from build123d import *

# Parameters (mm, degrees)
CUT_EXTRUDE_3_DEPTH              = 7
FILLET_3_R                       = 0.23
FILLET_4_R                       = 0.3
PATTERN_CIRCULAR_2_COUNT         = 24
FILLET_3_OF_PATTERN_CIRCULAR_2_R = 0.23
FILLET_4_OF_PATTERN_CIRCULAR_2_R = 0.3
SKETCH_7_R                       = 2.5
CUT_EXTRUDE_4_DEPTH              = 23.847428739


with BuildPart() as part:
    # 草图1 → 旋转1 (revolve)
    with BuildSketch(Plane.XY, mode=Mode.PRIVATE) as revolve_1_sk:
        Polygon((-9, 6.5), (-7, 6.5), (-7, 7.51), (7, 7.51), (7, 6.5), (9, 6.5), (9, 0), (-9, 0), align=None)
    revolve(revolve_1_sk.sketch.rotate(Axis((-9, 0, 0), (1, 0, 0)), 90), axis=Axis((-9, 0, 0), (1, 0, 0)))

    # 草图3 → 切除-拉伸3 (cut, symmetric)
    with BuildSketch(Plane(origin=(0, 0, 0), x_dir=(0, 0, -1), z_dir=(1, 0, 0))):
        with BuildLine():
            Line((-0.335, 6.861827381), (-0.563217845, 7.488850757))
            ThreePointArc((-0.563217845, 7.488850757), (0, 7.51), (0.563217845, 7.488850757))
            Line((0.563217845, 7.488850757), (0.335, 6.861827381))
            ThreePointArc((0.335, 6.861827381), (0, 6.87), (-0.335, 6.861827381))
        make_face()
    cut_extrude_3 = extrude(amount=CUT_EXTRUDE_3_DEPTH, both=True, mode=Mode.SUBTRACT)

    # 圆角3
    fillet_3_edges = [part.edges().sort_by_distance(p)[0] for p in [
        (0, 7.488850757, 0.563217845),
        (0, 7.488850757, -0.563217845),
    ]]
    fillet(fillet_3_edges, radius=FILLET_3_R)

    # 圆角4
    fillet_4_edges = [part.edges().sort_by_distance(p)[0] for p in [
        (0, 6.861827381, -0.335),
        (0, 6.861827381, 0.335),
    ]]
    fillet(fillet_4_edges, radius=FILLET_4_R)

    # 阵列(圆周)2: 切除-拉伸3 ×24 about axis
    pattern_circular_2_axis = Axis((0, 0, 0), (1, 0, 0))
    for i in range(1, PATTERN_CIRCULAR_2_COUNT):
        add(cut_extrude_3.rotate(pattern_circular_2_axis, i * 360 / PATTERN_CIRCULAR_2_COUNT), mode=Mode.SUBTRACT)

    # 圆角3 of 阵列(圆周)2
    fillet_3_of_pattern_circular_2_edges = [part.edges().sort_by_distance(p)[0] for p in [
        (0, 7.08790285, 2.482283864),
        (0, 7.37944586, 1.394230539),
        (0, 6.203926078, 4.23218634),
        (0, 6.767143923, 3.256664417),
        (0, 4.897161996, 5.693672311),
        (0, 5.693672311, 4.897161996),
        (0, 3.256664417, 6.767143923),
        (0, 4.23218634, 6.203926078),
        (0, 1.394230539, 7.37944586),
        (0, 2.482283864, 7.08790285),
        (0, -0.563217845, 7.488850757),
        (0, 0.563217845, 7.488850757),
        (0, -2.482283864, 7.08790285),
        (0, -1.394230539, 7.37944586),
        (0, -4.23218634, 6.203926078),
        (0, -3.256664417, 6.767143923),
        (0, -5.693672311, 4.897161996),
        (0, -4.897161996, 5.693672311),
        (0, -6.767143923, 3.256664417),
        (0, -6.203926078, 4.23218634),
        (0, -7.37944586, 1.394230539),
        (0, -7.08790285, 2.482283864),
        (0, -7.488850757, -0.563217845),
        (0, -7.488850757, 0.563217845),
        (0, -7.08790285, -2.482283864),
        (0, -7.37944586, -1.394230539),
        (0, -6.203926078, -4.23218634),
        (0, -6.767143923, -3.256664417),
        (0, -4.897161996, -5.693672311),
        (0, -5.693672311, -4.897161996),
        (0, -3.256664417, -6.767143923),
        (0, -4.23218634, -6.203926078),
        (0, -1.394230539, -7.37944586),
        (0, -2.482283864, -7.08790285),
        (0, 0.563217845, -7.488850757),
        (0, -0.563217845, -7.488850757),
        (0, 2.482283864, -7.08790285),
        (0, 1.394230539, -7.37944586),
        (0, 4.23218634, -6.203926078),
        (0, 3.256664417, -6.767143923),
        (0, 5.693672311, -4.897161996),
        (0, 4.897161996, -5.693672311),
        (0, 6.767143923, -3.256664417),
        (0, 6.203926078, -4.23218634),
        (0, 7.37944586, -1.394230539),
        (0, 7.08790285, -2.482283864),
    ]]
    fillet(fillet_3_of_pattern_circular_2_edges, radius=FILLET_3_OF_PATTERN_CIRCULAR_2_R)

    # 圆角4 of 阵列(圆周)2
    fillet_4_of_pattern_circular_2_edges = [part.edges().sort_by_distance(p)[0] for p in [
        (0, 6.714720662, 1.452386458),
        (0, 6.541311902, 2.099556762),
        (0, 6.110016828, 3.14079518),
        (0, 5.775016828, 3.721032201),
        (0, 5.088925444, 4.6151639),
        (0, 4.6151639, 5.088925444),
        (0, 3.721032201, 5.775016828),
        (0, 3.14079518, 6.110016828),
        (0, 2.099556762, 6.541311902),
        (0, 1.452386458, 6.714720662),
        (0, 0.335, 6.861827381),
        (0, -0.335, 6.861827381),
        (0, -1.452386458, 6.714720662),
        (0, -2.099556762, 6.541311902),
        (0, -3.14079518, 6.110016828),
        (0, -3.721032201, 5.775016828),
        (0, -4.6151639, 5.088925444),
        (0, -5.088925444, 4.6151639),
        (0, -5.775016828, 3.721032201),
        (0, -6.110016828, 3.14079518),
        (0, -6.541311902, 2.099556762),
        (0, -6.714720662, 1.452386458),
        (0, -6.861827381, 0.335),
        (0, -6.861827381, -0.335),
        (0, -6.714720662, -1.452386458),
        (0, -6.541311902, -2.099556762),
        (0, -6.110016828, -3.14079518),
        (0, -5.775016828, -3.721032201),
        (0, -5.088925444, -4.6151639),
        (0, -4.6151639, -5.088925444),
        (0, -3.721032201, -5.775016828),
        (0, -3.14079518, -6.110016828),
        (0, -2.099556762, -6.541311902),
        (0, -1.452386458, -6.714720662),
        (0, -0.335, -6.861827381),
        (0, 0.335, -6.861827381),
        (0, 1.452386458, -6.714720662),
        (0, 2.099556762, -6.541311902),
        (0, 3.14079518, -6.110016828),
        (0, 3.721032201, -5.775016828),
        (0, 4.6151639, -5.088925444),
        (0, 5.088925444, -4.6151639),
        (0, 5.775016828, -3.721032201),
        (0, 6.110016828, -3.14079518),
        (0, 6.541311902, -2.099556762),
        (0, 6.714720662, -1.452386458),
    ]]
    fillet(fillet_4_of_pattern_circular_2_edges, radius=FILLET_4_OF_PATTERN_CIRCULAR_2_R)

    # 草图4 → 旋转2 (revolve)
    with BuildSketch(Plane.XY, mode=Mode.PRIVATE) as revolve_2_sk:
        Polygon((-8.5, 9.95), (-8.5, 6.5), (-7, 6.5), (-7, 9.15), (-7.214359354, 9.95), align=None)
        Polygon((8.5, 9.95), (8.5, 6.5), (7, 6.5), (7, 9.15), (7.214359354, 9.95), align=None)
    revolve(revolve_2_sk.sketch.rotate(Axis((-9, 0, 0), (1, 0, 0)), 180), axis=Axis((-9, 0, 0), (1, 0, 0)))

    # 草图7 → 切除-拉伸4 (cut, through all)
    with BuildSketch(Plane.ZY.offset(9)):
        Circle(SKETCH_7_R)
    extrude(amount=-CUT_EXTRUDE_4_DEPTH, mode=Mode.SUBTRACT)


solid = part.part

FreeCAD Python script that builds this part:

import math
import FreeCAD as App
import Part
import Sketcher

V = App.Vector
Q = App.Units.Quantity


def edges_at(feature, points):
    """Names of the edges that pass closest to the given points."""
    edges = feature.Shape.Edges
    near = lambda p: min(range(len(edges)), key=lambda i: edges[i].distToShape(Part.Vertex(*p))[0])
    return sorted({f"Edge{near(p) + 1}" for p in points})

doc = App.newDocument("Part")
body = doc.addObject("PartDesign::Body", "Body")

sketch1 = body.newObject("Sketcher::SketchObject", "Sketch")
sketch1.AttachmentSupport = (doc.getObject("XY_Plane"), [""])
sketch1.MapMode = "FlatFace"
sketch1.addGeometry(Part.LineSegment(V(-7, 6.5, 0), V(-9, 6.5, 0)), False)
sketch1.addGeometry(Part.LineSegment(V(-9, 6.5, 0), V(-9, 0, 0)), False)
sketch1.addGeometry(Part.LineSegment(V(-9, 0, 0), V(9, 0, 0)), False)
sketch1.addGeometry(Part.LineSegment(V(9, 0, 0), V(9, 6.5, 0)), False)
sketch1.addGeometry(Part.LineSegment(V(9, 6.5, 0), V(7, 6.5, 0)), False)
sketch1.addGeometry(Part.LineSegment(V(7, 6.5, 0), V(7, 7.51, 0)), False)
sketch1.addGeometry(Part.LineSegment(V(7, 7.51, 0), V(-7, 7.51, 0)), False)
sketch1.addGeometry(Part.LineSegment(V(-7, 7.51, 0), V(-7, 6.5, 0)), False)
sketch1.addConstraint(Sketcher.Constraint("Coincident", 0, 2, 1, 1))
sketch1.addConstraint(Sketcher.Constraint("Coincident", 1, 2, 2, 1))
sketch1.addConstraint(Sketcher.Constraint("Coincident", 2, 2, 3, 1))
sketch1.addConstraint(Sketcher.Constraint("Coincident", 3, 2, 4, 1))
sketch1.addConstraint(Sketcher.Constraint("Coincident", 4, 2, 5, 1))
sketch1.addConstraint(Sketcher.Constraint("Coincident", 5, 2, 6, 1))
sketch1.addConstraint(Sketcher.Constraint("Coincident", 6, 2, 7, 1))
sketch1.addConstraint(Sketcher.Constraint("Coincident", 7, 2, 0, 1))
sketch1.addConstraint(Sketcher.Constraint("Horizontal", 0))
sketch1.addConstraint(Sketcher.Constraint("Vertical", 1))
sketch1.addConstraint(Sketcher.Constraint("Horizontal", 2))
sketch1.addConstraint(Sketcher.Constraint("Vertical", 3))
sketch1.addConstraint(Sketcher.Constraint("Horizontal", 4))
sketch1.addConstraint(Sketcher.Constraint("Vertical", 5))
sketch1.addConstraint(Sketcher.Constraint("Horizontal", 6))
sketch1.addConstraint(Sketcher.Constraint("Vertical", 7))
sketch1.addConstraint(Sketcher.Constraint("Symmetric", 1, 2, 2, 2, -1, 1))
sketch1.addConstraint(Sketcher.Constraint("Symmetric", 4, 2, 7, 2, -2))
sketch1.addConstraint(Sketcher.Constraint("DistanceX", 0, 2, 0, 1, Q("2 mm")))
sketch1.addConstraint(Sketcher.Constraint("DistanceX", 2, 1, 2, 2, Q("18 mm")))
sketch1.addConstraint(Sketcher.Constraint("DistanceY", 1, 2, 1, 1, Q("6.5 mm")))
sketch1.addConstraint(Sketcher.Constraint("DistanceY", 5, 1, 5, 2, Q("1.01 mm")))
revolution = body.newObject("PartDesign::Revolution", "Revolution")
revolution.Profile = sketch1
revolution.ReferenceAxis = (sketch1, ["H_Axis"])
revolution.Angle = 360

sketch2 = body.newObject("Sketcher::SketchObject", "Sketch001")
sketch2.AttachmentSupport = (doc.getObject("YZ_Plane"), [""])
sketch2.MapMode = "FlatFace"
sketch2.addGeometry(Part.LineSegment(V(7.488851, 0.563218, 0), V(6.861827, 0.335, 0)), False)
sketch2.addGeometry(Part.ArcOfCircle(Part.Circle(V(0, 0, 0), V(0, 0, 1), 6.87), math.radians(-2.795007), math.radians(2.795007)), False)
sketch2.addGeometry(Part.LineSegment(V(6.861827, -0.335, 0), V(7.488851, -0.563218, 0)), False)
sketch2.addGeometry(Part.ArcOfCircle(Part.Circle(V(0, 0, 0), V(0, 0, 1), 7.51), math.radians(-4.300976), math.radians(4.300976)), False)
sketch2.addConstraint(Sketcher.Constraint("Coincident", 0, 2, 1, 2))
sketch2.addConstraint(Sketcher.Constraint("Coincident", 1, 1, 2, 1))
sketch2.addConstraint(Sketcher.Constraint("Coincident", 2, 2, 3, 1))
sketch2.addConstraint(Sketcher.Constraint("Coincident", 3, 2, 0, 1))
sketch2.addConstraint(Sketcher.Constraint("Coincident", 1, 3, -1, 1))
sketch2.addConstraint(Sketcher.Constraint("Coincident", 3, 3, -1, 1))
sketch2.addConstraint(Sketcher.Constraint("Vertical", 0, 2, 1, 1))
sketch2.addConstraint(Sketcher.Constraint("Vertical", 2, 2, 3, 2))
sketch2.addConstraint(Sketcher.Constraint("Angle", 0, Q("-160 deg")))
sketch2.addConstraint(Sketcher.Constraint("Radius", 1, Q("6.87 mm")))
sketch2.addConstraint(Sketcher.Constraint("Radius", 3, Q("7.51 mm")))
sketch2.addConstraint(Sketcher.Constraint("DistanceY", 1, 1, 0, 2, Q("0.67 mm")))
pocket1 = body.newObject("PartDesign::Pocket", "Pocket")
pocket1.Profile = sketch2
pocket1.Length = 14
pocket1.Midplane = True
doc.recompute()

fillet = body.newObject("PartDesign::Fillet", "Fillet")
fillet.Base = (pocket1, edges_at(pocket1, [(0, 7.489, 0.563), (0, 7.489, -0.563)]))
fillet.Radius = 0.23
doc.recompute()

fillet2 = body.newObject("PartDesign::Fillet", "Fillet001")
fillet2.Base = (fillet, edges_at(fillet, [(0, 6.862, -0.335), (0, 6.862, 0.335)]))
fillet2.Radius = 0.3
doc.recompute()

polarpattern = body.newObject("PartDesign::PolarPattern", "PolarPattern")
polarpattern.Originals = [pocket1]
polarpattern.Axis = (doc.getObject("X_Axis"), [""])
polarpattern.Angle = 360
polarpattern.Occurrences = 24
body.Tip = polarpattern
doc.recompute()

fillet3 = body.newObject("PartDesign::Fillet", "Fillet002")
fillet3.Base = (polarpattern, edges_at(polarpattern, [
    (0, 7.088, 2.482),
    (0, 7.379, 1.394),
    (0, 6.204, 4.232),
    (0, 6.767, 3.257),
    (0, 4.897, 5.694),
    (0, 5.694, 4.897),
    (0, 3.257, 6.767),
    (0, 4.232, 6.204),
    (0, 1.394, 7.379),
    (0, 2.482, 7.088),
    (0, -0.563, 7.489),
    (0, 0.563, 7.489),
    (0, -2.482, 7.088),
    (0, -1.394, 7.379),
    (0, -4.232, 6.204),
    (0, -3.257, 6.767),
    (0, -5.694, 4.897),
    (0, -4.897, 5.694),
    (0, -6.767, 3.257),
    (0, -6.204, 4.232),
    (0, -7.379, 1.394),
    (0, -7.088, 2.482),
    (0, -7.489, -0.563),
    (0, -7.489, 0.563),
    (0, -7.088, -2.482),
    (0, -7.379, -1.394),
    (0, -6.204, -4.232),
    (0, -6.767, -3.257),
    (0, -4.897, -5.694),
    (0, -5.694, -4.897),
    (0, -3.257, -6.767),
    (0, -4.232, -6.204),
    (0, -1.394, -7.379),
    (0, -2.482, -7.088),
    (0, 0.563, -7.489),
    (0, -0.563, -7.489),
    (0, 2.482, -7.088),
    (0, 1.394, -7.379),
    (0, 4.232, -6.204),
    (0, 3.257, -6.767),
    (0, 5.694, -4.897),
    (0, 4.897, -5.694),
    (0, 6.767, -3.257),
    (0, 6.204, -4.232),
    (0, 7.379, -1.394),
    (0, 7.088, -2.482),
]))
fillet3.Radius = 0.23
doc.recompute()

fillet4 = body.newObject("PartDesign::Fillet", "Fillet003")
fillet4.Base = (fillet3, edges_at(fillet3, [
    (0, 6.715, 1.452),
    (0, 6.541, 2.1),
    (0, 6.11, 3.141),
    (0, 5.775, 3.721),
    (0, 5.089, 4.615),
    (0, 4.615, 5.089),
    (0, 3.721, 5.775),
    (0, 3.141, 6.11),
    (0, 2.1, 6.541),
    (0, 1.452, 6.715),
    (0, 0.335, 6.862),
    (0, -0.335, 6.862),
    (0, -1.452, 6.715),
    (0, -2.1, 6.541),
    (0, -3.141, 6.11),
    (0, -3.721, 5.775),
    (0, -4.615, 5.089),
    (0, -5.089, 4.615),
    (0, -5.775, 3.721),
    (0, -6.11, 3.141),
    (0, -6.541, 2.1),
    (0, -6.715, 1.452),
    (0, -6.862, 0.335),
    (0, -6.862, -0.335),
    (0, -6.715, -1.452),
    (0, -6.541, -2.1),
    (0, -6.11, -3.141),
    (0, -5.775, -3.721),
    (0, -5.089, -4.615),
    (0, -4.615, -5.089),
    (0, -3.721, -5.775),
    (0, -3.141, -6.11),
    (0, -2.1, -6.541),
    (0, -1.452, -6.715),
    (0, -0.335, -6.862),
    (0, 0.335, -6.862),
    (0, 1.452, -6.715),
    (0, 2.1, -6.541),
    (0, 3.141, -6.11),
    (0, 3.721, -5.775),
    (0, 4.615, -5.089),
    (0, 5.089, -4.615),
    (0, 5.775, -3.721),
    (0, 6.11, -3.141),
    (0, 6.541, -2.1),
    (0, 6.715, -1.452),
]))
fillet4.Radius = 0.3

sketch3 = body.newObject("Sketcher::SketchObject", "Sketch002")
sketch3.AttachmentSupport = (doc.getObject("XY_Plane"), [""])
sketch3.MapMode = "FlatFace"
sketch3.addGeometry(Part.LineSegment(V(-8.5, 9.95, 0), V(-8.5, 6.5, 0)), False)
sketch3.addGeometry(Part.LineSegment(V(-8.5, 6.5, 0), V(-7, 6.5, 0)), False)
sketch3.addGeometry(Part.LineSegment(V(-7, 6.5, 0), V(-7, 9.15, 0)), False)
sketch3.addGeometry(Part.LineSegment(V(-7, 9.15, 0), V(-7.214359, 9.95, 0)), False)
sketch3.addGeometry(Part.LineSegment(V(-7.214359, 9.95, 0), V(-8.5, 9.95, 0)), False)
sketch3.addGeometry(Part.LineSegment(V(8.5, 6.5, 0), V(8.5, 9.95, 0)), False)
sketch3.addGeometry(Part.LineSegment(V(8.5, 9.95, 0), V(7.214359, 9.95, 0)), False)
sketch3.addGeometry(Part.LineSegment(V(7.214359, 9.95, 0), V(7, 9.15, 0)), False)
sketch3.addGeometry(Part.LineSegment(V(7, 9.15, 0), V(7, 6.5, 0)), False)
sketch3.addGeometry(Part.LineSegment(V(7, 6.5, 0), V(8.5, 6.5, 0)), False)
sketch3.addConstraint(Sketcher.Constraint("Coincident", 0, 2, 1, 1))
sketch3.addConstraint(Sketcher.Constraint("Coincident", 1, 2, 2, 1))
sketch3.addConstraint(Sketcher.Constraint("Coincident", 2, 2, 3, 1))
sketch3.addConstraint(Sketcher.Constraint("Coincident", 3, 2, 4, 1))
sketch3.addConstraint(Sketcher.Constraint("Coincident", 4, 2, 0, 1))
sketch3.addConstraint(Sketcher.Constraint("Coincident", 5, 2, 6, 1))
sketch3.addConstraint(Sketcher.Constraint("Coincident", 6, 2, 7, 1))
sketch3.addConstraint(Sketcher.Constraint("Coincident", 7, 2, 8, 1))
sketch3.addConstraint(Sketcher.Constraint("Coincident", 8, 2, 9, 1))
sketch3.addConstraint(Sketcher.Constraint("Coincident", 9, 2, 5, 1))
sketch3.addConstraint(Sketcher.Constraint("Vertical", 0))
sketch3.addConstraint(Sketcher.Constraint("Horizontal", 1))
sketch3.addConstraint(Sketcher.Constraint("Vertical", 2))
sketch3.addConstraint(Sketcher.Constraint("Horizontal", 4))
sketch3.addConstraint(Sketcher.Constraint("Vertical", 5))
sketch3.addConstraint(Sketcher.Constraint("Horizontal", 6))
sketch3.addConstraint(Sketcher.Constraint("Vertical", 8))
sketch3.addConstraint(Sketcher.Constraint("Horizontal", 9))
sketch3.addConstraint(Sketcher.Constraint("Symmetric", 4, 2, 5, 2, -2))
sketch3.addConstraint(Sketcher.Constraint("Symmetric", 2, 2, 7, 2, -2))
sketch3.addConstraint(Sketcher.Constraint("Horizontal", 1, 2, 8, 2))
sketch3.addConstraint(Sketcher.Constraint("Equal", 4, 6))
sketch3.addConstraint(Sketcher.Constraint("Angle", 3, Q("105 deg")))
sketch3.addConstraint(Sketcher.Constraint("DistanceX", 1, 1, 1, 2, Q("1.5 mm")))
sketch3.addConstraint(Sketcher.Constraint("DistanceX", 1, 2, -1, 1, Q("7 mm")))
sketch3.addConstraint(Sketcher.Constraint("DistanceY", 0, 2, 0, 1, Q("3.45 mm")))
sketch3.addConstraint(Sketcher.Constraint("DistanceY", 2, 1, 2, 2, Q("2.65 mm")))
sketch3.addConstraint(Sketcher.Constraint("DistanceY", -1, 1, 0, 2, Q("6.5 mm")))
revolution2 = body.newObject("PartDesign::Revolution", "Revolution001")
revolution2.Profile = sketch3
revolution2.ReferenceAxis = (sketch3, ["H_Axis"])
revolution2.Angle = 360

sketch4 = body.newObject("Sketcher::SketchObject", "Sketch003")
sketch4.AttachmentSupport = (doc.getObject("YZ_Plane"), [""])
sketch4.MapMode = "FlatFace"
sketch4.AttachmentOffset = App.Placement(V(0, 0, -9), App.Rotation())
sketch4.addGeometry(Part.Circle(V(0, 0, 0), V(0, 0, 1), 2.5), False)
sketch4.addConstraint(Sketcher.Constraint("Coincident", 0, 3, -1, 1))
sketch4.addConstraint(Sketcher.Constraint("Diameter", 0, Q("5 mm")))
pocket2 = body.newObject("PartDesign::Pocket", "Pocket001")
pocket2.Profile = sketch4
pocket2.Type = "ThroughAll"
pocket2.Reversed = True

doc.recompute()
